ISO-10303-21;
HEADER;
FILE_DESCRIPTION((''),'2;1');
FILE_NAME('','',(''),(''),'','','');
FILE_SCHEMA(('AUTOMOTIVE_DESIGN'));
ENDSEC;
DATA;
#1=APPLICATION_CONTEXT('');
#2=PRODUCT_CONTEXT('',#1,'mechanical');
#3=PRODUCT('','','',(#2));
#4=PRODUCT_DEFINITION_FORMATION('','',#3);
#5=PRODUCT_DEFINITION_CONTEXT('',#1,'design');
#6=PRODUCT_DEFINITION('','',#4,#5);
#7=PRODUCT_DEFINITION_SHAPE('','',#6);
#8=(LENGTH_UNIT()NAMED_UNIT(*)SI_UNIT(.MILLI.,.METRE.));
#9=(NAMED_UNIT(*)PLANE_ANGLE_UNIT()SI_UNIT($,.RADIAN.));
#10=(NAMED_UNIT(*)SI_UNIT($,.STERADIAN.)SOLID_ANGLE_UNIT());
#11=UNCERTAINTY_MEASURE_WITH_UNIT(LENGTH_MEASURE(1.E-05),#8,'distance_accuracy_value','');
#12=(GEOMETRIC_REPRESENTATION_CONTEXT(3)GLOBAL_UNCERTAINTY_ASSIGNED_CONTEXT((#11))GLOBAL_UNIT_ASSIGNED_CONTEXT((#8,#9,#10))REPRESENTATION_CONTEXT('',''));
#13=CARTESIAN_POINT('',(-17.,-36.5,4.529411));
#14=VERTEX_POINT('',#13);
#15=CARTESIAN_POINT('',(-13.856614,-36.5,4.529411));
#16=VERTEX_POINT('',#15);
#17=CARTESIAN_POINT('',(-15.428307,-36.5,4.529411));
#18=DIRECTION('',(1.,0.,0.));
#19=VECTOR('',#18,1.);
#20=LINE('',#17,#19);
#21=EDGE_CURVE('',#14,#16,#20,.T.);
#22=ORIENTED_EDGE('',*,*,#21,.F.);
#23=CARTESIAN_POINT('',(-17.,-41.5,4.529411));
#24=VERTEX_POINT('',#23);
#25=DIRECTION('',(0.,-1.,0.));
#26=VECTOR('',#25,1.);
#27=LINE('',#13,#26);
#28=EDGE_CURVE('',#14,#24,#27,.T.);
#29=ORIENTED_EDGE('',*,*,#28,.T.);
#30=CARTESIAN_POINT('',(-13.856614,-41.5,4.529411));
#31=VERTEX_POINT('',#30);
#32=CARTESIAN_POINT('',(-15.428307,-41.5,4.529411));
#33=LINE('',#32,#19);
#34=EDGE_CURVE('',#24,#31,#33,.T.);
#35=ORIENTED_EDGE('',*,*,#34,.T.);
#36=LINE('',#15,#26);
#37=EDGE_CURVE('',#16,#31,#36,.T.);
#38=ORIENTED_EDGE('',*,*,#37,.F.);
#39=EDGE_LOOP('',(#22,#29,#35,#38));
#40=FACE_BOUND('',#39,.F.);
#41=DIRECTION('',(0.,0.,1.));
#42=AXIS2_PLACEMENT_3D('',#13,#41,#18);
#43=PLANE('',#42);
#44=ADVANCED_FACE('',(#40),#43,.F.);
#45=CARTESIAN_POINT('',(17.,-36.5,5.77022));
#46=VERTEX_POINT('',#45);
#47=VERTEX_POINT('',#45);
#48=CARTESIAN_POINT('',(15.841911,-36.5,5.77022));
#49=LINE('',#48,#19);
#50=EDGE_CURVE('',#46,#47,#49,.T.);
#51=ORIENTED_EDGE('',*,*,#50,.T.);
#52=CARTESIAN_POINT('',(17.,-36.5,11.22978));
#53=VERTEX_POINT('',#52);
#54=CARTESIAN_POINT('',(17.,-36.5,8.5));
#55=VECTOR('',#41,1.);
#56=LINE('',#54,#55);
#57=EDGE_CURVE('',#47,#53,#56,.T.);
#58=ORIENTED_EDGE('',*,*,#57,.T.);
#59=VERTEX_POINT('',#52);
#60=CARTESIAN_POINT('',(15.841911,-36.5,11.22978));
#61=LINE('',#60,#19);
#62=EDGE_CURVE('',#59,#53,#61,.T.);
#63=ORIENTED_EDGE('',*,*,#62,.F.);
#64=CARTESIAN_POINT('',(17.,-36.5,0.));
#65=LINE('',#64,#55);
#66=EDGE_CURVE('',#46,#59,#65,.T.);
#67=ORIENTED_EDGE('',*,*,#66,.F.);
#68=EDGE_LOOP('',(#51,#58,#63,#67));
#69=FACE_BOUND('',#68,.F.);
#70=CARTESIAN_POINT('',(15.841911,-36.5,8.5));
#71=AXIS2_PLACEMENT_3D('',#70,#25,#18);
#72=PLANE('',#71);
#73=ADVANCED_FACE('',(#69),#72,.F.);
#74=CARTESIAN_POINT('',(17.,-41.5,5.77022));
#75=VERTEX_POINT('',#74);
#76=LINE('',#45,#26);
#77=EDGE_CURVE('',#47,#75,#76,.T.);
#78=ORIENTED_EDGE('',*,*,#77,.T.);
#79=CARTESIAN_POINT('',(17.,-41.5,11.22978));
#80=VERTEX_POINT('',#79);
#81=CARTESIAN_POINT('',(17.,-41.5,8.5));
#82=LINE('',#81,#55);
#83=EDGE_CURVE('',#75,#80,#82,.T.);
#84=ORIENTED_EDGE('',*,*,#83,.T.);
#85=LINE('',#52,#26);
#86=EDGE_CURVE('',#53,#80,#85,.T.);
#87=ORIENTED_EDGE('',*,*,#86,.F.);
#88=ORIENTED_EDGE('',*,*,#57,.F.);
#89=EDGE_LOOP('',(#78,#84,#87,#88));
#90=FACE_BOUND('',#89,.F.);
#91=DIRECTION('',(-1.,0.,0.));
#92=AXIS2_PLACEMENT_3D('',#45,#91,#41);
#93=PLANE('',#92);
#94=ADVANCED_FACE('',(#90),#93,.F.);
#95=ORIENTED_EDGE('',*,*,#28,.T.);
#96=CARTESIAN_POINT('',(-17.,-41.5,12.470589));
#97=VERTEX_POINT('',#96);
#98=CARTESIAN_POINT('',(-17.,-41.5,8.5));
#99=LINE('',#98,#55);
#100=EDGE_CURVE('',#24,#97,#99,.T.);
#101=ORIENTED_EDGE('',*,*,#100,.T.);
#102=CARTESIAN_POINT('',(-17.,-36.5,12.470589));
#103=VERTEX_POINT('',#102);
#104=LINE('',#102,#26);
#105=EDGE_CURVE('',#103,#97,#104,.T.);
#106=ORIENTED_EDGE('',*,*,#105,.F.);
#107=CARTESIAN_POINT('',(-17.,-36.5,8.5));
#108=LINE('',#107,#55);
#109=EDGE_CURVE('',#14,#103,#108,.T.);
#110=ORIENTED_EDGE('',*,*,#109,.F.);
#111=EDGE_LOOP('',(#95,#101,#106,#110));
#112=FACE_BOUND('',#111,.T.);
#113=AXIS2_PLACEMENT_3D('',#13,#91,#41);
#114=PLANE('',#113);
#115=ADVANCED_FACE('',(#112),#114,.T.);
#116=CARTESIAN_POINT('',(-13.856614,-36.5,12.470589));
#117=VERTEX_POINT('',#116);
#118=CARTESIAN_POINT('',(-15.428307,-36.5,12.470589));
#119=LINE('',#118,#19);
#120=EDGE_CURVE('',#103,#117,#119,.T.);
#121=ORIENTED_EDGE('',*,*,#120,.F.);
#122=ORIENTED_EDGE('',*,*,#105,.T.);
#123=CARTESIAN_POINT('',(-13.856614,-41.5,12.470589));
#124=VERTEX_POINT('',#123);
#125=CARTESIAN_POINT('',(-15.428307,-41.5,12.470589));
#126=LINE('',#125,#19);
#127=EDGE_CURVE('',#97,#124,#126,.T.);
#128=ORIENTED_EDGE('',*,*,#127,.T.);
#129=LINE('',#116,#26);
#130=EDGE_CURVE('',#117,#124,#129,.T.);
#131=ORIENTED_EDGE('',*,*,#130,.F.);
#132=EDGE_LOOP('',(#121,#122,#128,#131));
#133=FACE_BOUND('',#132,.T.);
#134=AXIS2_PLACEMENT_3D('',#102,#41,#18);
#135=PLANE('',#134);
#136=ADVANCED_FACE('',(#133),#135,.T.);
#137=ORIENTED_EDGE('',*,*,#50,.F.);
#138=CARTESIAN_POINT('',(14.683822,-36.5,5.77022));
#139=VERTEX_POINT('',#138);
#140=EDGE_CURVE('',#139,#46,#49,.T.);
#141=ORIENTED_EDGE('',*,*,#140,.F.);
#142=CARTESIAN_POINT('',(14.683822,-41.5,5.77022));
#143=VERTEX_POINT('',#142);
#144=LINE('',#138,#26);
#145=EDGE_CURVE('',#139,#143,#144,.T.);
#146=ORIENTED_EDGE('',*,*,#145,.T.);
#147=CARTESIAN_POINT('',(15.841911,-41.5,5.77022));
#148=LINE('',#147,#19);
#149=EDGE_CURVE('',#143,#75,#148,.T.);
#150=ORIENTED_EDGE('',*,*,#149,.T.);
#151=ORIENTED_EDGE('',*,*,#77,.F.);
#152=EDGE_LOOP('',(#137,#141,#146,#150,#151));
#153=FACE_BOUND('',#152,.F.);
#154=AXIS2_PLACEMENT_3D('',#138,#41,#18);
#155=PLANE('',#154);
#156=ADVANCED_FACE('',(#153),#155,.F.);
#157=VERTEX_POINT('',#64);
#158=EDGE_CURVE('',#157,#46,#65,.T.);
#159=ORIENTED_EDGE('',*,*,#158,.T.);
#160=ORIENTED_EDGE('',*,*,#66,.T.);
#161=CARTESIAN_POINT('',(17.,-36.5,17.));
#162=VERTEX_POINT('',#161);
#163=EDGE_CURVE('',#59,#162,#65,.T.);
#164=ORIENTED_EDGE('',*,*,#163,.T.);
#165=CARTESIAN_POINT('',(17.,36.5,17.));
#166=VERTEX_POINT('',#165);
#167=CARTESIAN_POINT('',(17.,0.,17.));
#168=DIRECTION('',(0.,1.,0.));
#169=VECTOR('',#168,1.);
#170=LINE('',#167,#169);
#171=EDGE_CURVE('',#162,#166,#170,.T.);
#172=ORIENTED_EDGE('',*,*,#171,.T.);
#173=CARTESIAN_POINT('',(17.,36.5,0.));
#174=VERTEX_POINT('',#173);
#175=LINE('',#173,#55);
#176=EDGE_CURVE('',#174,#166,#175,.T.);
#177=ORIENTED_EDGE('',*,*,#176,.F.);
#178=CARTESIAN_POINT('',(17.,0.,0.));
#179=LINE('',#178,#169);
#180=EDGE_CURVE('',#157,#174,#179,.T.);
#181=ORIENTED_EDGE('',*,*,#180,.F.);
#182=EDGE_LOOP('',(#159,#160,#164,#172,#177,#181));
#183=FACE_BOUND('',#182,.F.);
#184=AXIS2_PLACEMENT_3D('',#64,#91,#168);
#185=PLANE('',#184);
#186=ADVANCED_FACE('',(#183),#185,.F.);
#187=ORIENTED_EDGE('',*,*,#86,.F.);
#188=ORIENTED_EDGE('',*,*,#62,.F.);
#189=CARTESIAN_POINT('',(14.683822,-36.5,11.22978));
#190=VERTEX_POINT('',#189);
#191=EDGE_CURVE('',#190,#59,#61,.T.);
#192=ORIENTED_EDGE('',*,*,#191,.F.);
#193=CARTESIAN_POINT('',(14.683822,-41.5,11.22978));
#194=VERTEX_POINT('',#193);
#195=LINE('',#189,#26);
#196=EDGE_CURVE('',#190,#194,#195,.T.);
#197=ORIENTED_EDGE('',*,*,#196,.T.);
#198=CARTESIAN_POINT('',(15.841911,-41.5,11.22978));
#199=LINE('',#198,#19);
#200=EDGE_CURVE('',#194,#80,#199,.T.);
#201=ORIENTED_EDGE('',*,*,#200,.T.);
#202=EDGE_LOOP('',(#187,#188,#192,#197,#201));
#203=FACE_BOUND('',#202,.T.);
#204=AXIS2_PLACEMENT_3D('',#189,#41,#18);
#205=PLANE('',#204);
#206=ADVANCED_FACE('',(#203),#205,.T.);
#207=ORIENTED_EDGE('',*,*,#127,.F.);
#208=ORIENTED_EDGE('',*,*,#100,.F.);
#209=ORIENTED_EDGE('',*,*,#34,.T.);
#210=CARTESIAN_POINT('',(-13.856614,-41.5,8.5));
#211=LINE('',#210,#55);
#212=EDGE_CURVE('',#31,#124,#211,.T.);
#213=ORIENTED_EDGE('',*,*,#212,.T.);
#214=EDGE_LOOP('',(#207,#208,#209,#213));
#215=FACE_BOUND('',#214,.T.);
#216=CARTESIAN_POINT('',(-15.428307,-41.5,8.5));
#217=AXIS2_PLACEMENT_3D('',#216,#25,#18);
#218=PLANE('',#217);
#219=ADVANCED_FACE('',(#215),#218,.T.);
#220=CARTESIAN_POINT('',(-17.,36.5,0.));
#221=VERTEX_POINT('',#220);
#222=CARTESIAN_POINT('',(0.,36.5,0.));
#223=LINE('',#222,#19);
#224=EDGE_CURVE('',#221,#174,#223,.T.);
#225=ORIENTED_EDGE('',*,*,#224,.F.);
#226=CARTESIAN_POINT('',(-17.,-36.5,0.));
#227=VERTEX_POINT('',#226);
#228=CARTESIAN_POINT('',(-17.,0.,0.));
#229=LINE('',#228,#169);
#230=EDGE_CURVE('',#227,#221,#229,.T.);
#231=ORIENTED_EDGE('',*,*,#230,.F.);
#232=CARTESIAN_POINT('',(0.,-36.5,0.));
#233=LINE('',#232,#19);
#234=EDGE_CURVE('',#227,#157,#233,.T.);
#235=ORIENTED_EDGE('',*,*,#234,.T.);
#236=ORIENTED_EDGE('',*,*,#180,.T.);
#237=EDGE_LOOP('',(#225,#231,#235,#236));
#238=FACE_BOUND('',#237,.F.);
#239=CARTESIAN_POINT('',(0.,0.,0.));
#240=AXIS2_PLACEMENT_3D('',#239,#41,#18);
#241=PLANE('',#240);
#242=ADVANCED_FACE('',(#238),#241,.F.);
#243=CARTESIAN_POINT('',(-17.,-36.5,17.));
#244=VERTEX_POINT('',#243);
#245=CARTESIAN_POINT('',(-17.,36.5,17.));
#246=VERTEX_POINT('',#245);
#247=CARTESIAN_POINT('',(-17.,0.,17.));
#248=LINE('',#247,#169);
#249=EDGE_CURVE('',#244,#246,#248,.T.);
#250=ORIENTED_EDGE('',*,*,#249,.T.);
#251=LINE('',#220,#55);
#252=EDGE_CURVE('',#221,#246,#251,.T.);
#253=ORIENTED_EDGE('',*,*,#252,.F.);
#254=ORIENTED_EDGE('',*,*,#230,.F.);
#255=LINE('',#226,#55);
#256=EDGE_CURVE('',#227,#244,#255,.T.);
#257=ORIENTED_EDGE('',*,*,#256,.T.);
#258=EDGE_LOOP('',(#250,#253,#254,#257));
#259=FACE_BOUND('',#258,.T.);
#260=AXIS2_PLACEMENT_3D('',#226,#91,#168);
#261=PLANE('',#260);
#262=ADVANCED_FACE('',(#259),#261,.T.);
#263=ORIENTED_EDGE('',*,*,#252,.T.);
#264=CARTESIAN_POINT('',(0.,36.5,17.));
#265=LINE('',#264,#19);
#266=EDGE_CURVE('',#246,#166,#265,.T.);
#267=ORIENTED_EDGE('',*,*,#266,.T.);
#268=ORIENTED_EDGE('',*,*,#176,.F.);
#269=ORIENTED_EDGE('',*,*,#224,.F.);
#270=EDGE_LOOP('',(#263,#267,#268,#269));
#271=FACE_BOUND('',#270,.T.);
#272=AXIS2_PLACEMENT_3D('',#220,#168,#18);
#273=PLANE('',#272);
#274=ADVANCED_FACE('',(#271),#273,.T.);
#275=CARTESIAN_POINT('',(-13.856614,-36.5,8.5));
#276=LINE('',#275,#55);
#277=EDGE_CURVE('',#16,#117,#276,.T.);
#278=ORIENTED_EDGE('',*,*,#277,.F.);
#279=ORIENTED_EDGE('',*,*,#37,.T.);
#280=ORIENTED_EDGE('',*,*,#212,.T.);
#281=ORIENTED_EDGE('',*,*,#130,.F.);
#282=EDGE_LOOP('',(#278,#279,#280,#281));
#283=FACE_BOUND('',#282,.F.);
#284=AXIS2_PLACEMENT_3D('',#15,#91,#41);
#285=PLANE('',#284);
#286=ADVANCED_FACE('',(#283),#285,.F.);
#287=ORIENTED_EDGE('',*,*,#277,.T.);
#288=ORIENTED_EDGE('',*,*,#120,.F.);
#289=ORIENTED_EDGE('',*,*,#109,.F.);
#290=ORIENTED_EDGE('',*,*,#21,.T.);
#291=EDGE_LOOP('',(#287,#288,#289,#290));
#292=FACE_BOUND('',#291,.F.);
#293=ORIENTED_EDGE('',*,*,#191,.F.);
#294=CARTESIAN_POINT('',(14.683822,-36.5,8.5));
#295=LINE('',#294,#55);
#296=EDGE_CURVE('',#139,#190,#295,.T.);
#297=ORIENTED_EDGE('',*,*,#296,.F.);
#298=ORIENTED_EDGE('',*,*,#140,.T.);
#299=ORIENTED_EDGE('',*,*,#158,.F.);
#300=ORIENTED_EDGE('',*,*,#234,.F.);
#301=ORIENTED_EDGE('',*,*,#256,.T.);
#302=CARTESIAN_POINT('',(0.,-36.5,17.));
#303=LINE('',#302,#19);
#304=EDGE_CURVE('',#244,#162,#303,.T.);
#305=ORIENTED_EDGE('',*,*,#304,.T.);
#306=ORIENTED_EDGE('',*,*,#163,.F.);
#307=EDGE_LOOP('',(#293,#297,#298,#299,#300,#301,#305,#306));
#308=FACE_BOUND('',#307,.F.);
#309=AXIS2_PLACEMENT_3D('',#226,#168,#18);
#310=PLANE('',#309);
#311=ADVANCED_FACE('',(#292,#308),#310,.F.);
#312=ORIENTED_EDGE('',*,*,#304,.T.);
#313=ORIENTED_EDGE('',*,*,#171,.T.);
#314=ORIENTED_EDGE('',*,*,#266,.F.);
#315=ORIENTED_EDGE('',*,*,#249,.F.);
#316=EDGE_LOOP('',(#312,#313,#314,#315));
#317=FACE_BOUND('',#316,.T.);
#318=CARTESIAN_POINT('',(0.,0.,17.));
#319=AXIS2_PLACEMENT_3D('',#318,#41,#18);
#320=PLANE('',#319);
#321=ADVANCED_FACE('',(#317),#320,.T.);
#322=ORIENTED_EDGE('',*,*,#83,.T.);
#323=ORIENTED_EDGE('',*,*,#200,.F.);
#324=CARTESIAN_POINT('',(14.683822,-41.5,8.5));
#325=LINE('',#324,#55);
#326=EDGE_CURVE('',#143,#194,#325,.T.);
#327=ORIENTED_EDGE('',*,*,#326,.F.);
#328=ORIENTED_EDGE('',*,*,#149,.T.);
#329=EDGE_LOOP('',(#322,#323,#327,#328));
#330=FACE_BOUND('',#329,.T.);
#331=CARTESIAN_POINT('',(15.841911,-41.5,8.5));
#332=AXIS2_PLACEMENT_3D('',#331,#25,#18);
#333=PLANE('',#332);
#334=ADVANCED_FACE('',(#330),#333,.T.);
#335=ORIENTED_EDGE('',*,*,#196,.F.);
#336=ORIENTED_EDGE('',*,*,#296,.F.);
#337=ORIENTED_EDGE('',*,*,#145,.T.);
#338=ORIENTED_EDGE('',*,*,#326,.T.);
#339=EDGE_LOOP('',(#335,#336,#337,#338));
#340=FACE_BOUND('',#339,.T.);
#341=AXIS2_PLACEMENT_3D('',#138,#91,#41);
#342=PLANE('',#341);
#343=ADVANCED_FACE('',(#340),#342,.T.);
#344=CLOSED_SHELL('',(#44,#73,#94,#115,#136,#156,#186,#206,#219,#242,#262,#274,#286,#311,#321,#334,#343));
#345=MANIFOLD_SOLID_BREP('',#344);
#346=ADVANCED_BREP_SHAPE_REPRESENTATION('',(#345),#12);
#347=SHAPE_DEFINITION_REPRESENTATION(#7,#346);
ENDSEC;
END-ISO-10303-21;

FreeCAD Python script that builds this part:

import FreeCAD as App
import Part
import Sketcher

V = App.Vector
Q = App.Units.Quantity

doc = App.newDocument("Part")
body = doc.addObject("PartDesign::Body", "Body")

sketch1 = body.newObject("Sketcher::SketchObject", "Sketch")
sketch1.AttachmentSupport = (doc.getObject("XY_Plane"), [""])
sketch1.MapMode = "FlatFace"
sketch1.addGeometry([
    Part.LineSegment(V(-17, 36, 0), V(-17, -36, 0)),
    Part.LineSegment(V(-17, -36, 0), V(17, -36, 0)),
    Part.LineSegment(V(17, -36, 0), V(17, 36, 0)),
    Part.LineSegment(V(17, 36, 0), V(-17, 36, 0)),
], False)
sketch1.addConstraint([
    Sketcher.Constraint("Coincident", 0, 2, 1, 1),
    Sketcher.Constraint("Coincident", 1, 2, 2, 1),
    Sketcher.Constraint("Coincident", 2, 2, 3, 1),
    Sketcher.Constraint("Coincident", 3, 2, 0, 1),
    Sketcher.Constraint("Vertical", 0),
    Sketcher.Constraint("Horizontal", 1),
    Sketcher.Constraint("Vertical", 2),
    Sketcher.Constraint("Horizontal", 3),
    Sketcher.Constraint("Symmetric", 0, 2, 2, 2, -1, 1),
    Sketcher.Constraint("DistanceX", 1, 1, 1, 2, Q("34 mm")),
    Sketcher.Constraint("DistanceY", 0, 2, 0, 1, Q("73 mm")),
])
pad1 = body.newObject("PartDesign::Pad", "Pad")
pad1.Profile = sketch1
pad1.Length = 17

sketch2 = body.newObject("Sketcher::SketchObject", "Sketch001")
sketch2.AttachmentSupport = (doc.getObject("XZ_Plane"), [""])
sketch2.MapMode = "FlatFace"
sketch2.AttachmentOffset = App.Placement(V(0, 0, 36.5), App.Rotation())
sketch2.addGeometry([
    Part.LineSegment(V(-17, 12.5, 0), V(-17, 4.5, 0)),
    Part.LineSegment(V(-17, 4.5, 0), V(-13.9, 4.5, 0)),
    Part.LineSegment(V(-13.9, 4.5, 0), V(-13.9, 12.5, 0)),
    Part.LineSegment(V(-13.9, 12.5, 0), V(-17, 12.5, 0)),
    Part.LineSegment(V(14.7, 11.2, 0), V(14.7, 5.8, 0)),
    Part.LineSegment(V(14.7, 5.8, 0), V(17, 5.8, 0)),
    Part.LineSegment(V(17, 5.8, 0), V(17, 11.2, 0)),
    Part.LineSegment(V(17, 11.2, 0), V(14.7, 11.2, 0)),
], False)
sketch2.addConstraint([
    Sketcher.Constraint("Coincident", 0, 2, 1, 1),
    Sketcher.Constraint("Coincident", 1, 2, 2, 1),
    Sketcher.Constraint("Coincident", 2, 2, 3, 1),
    Sketcher.Constraint("Coincident", 3, 2, 0, 1),
    Sketcher.Constraint("Coincident", 4, 2, 5, 1),
    Sketcher.Constraint("Coincident", 5, 2, 6, 1),
    Sketcher.Constraint("Coincident", 6, 2, 7, 1),
    Sketcher.Constraint("Coincident", 7, 2, 4, 1),
    Sketcher.Constraint("Vertical", 0),
    Sketcher.Constraint("Horizontal", 1),
    Sketcher.Constraint("Vertical", 2),
    Sketcher.Constraint("Horizontal", 3),
    Sketcher.Constraint("Vertical", 4),
    Sketcher.Constraint("Horizontal", 5),
    Sketcher.Constraint("Vertical", 6),
    Sketcher.Constraint("Horizontal", 7),
    Sketcher.Constraint("DistanceX", 0, 2, -1, 1, Q("17 mm")),
    Sketcher.Constraint("DistanceX", -1, 1, 5, 2, Q("17 mm")),
    Sketcher.Constraint("DistanceX", 5, 1, 5, 2, Q("2.316179 mm")),
    Sketcher.Constraint("DistanceY", 0, 2, 0, 1, Q("7.941178 mm")),
    Sketcher.Constraint("DistanceY", 4, 2, 4, 1, Q("5.45956 mm")),
    Sketcher.Constraint("DistanceX", 1, 1, 1, 2, Q("3.143385 mm")),
    Sketcher.Constraint("DistanceY", -1, 1, 0, 2, Q("4.529411 mm")),
    Sketcher.Constraint("DistanceY", -1, 1, 4, 2, Q("5.77022 mm")),
])
pad2 = body.newObject("PartDesign::Pad", "Pad001")
pad2.Profile = sketch2
pad2.Length = 5

doc.recompute()
